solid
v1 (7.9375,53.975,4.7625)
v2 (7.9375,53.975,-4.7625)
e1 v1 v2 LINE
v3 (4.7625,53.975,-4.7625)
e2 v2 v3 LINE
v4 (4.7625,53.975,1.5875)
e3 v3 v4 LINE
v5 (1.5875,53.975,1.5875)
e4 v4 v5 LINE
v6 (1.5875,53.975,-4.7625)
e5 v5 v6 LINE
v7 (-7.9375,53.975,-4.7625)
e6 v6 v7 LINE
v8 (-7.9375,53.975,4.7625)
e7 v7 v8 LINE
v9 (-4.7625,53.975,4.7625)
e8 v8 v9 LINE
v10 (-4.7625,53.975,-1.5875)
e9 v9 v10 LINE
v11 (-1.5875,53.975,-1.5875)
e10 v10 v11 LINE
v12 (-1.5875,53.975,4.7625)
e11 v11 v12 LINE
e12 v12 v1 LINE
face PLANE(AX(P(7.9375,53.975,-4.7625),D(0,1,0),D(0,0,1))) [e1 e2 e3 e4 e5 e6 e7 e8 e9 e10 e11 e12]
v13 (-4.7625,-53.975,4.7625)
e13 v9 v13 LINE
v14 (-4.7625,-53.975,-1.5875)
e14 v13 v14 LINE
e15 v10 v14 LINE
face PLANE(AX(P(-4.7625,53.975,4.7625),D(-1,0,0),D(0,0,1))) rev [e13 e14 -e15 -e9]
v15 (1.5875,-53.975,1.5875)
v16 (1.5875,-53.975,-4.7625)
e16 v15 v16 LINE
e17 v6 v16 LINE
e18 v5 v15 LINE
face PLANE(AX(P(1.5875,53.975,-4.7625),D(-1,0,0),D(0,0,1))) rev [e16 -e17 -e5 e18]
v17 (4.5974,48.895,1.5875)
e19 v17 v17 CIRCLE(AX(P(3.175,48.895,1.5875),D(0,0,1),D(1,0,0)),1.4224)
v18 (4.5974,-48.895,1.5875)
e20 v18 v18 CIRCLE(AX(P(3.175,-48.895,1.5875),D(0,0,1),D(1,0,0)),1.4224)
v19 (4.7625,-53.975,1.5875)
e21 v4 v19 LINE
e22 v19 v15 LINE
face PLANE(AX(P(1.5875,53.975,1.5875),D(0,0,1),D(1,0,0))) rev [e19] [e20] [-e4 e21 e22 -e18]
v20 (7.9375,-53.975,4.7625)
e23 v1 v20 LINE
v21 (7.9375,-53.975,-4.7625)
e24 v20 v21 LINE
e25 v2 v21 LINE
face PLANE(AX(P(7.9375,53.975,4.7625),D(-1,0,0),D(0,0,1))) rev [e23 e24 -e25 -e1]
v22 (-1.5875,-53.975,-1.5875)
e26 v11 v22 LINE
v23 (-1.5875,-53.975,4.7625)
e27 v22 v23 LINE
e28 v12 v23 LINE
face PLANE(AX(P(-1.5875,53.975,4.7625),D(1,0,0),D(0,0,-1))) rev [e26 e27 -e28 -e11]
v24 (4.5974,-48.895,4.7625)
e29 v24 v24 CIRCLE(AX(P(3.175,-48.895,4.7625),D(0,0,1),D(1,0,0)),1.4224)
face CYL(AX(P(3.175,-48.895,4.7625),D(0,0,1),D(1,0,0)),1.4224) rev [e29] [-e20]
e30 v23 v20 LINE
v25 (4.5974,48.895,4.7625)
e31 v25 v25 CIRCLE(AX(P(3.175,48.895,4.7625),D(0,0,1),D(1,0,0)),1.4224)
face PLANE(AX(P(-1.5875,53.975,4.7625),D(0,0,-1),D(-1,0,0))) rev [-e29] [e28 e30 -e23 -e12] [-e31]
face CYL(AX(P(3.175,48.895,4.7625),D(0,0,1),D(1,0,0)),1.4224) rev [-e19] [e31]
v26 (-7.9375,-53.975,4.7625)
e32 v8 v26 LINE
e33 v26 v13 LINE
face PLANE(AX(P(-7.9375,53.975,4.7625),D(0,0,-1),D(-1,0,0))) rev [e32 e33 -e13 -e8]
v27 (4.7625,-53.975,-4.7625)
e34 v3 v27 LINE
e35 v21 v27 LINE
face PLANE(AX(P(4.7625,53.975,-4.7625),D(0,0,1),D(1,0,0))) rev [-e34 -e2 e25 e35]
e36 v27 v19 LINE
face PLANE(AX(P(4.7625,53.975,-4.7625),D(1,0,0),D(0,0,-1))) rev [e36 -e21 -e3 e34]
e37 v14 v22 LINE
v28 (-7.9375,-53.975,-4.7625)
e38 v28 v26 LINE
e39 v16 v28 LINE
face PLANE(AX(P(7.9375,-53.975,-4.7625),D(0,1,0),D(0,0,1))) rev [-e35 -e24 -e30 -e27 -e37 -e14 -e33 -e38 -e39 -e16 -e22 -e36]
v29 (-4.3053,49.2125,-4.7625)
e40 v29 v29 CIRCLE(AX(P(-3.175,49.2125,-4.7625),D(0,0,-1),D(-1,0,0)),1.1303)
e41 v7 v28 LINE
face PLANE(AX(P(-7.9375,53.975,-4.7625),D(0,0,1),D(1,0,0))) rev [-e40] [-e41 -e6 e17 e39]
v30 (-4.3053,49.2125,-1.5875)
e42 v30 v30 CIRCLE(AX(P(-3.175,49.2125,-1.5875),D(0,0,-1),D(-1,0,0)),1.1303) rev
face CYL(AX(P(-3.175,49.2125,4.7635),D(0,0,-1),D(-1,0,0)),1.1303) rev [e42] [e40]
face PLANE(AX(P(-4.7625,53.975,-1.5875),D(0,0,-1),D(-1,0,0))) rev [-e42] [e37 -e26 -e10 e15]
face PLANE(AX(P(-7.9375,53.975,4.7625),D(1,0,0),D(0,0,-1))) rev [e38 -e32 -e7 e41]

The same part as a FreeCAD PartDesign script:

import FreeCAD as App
import Part
import Sketcher
Q = App.Units.Quantity


def add_polygon(sketch, points):
    """Adds a closed chain of lines whose ends are joined by coincident constraints."""
    first, n = sketch.GeometryCount, len(points)
    for a, b in zip(points, points[1:] + points[:1]):
        sketch.addGeometry(Part.LineSegment(App.Vector(*a, 0), App.Vector(*b, 0)), False)
    for i in range(n):
        sketch.addConstraint(Sketcher.Constraint("Coincident", first + i, 2, first + (i + 1) % n, 1))

doc = App.newDocument("Part")
body = doc.addObject("PartDesign::Body", "Body")

sketch1 = body.newObject("Sketcher::SketchObject", "Sketch")
sketch1.AttachmentSupport = (doc.getObject("XZ_Plane"), [""])
sketch1.MapMode = "FlatFace"
add_polygon(sketch1, [(-1.6, 4.8), (7.9, 4.8), (7.9, -4.8), (4.8, -4.8), (4.8, 1.6), (1.6, 1.6), (1.6, -4.8), (-7.9, -4.8), (-7.9, 4.8), (-4.8, 4.8), (-4.8, -1.6), (-1.6, -1.6)])
sketch1.addConstraint([
    Sketcher.Constraint("Horizontal", 0),
    Sketcher.Constraint("Vertical", 1),
    Sketcher.Constraint("Horizontal", 2),
    Sketcher.Constraint("Vertical", 3),
    Sketcher.Constraint("Horizontal", 4),
    Sketcher.Constraint("Vertical", 5),
    Sketcher.Constraint("Horizontal", 6),
    Sketcher.Constraint("Vertical", 7),
    Sketcher.Constraint("Horizontal", 8),
    Sketcher.Constraint("Vertical", 9),
    Sketcher.Constraint("Horizontal", 10),
    Sketcher.Constraint("Vertical", 11),
    Sketcher.Constraint("Symmetric", 0, 2, 6, 2, -1, 1),
    Sketcher.Constraint("Symmetric", 2, 2, 8, 2, -1, 1),
    Sketcher.Constraint("Symmetric", 4, 2, 10, 2, -1, 1),
    Sketcher.Constraint("Horizontal", 2, 2, 5, 2),
    Sketcher.Constraint("Equal", 2, 4),
    Sketcher.Constraint("Equal", 6, 1),
    Sketcher.Constraint("DistanceY", 3, 1, 3, 2, Q("0.25 in")),
    Sketcher.Constraint("DistanceX", 6, 2, 2, 2, Q("0.5 in")),
    Sketcher.Constraint("DistanceX", 0, 1, 0, 2, Q("0.375 in")),
])
pad1 = body.newObject("PartDesign::Pad", "Pad")
pad1.Profile = sketch1
pad1.Length = Q("4.25 in")
pad1.Midplane = True

sketch2 = body.newObject("Sketcher::SketchObject", "Sketch001")
sketch2.AttachmentSupport = (doc.getObject("XY_Plane"), [""])
sketch2.MapMode = "FlatFace"
sketch2.AttachmentOffset = App.Placement(App.Vector(0, 0, 0.1875 * 25.4), App.Rotation())
sketch2.addGeometry([
    Part.Circle(App.Vector(3.2, -48.9, 0), App.Vector(0, 0, 1), 1.1),
    Part.Circle(App.Vector(3.2, 48.9, 0), App.Vector(0, 0, 1), 1.1),
], False)
sketch2.addConstraint([
    Sketcher.Constraint("Equal", 0, 1),
    Sketcher.Constraint("Symmetric", 0, 3, 1, 3, -1),
    Sketcher.Constraint("Diameter", 0, Q("0.089 in")),
    Sketcher.Constraint("DistanceY", 0, 3, 1, 3, Q("3.85 in")),
    Sketcher.Constraint("DistanceX", -1, 1, 0, 3, Q("0.125 in")),
])
pocket1 = body.newObject("PartDesign::Pocket", "Pocket")
pocket1.Profile = sketch2
pocket1.Type = "ThroughAll"

sketch3 = body.newObject("Sketcher::SketchObject", "Sketch002")
sketch3.AttachmentSupport = (doc.getObject("XY_Plane"), [""])
sketch3.MapMode = "FlatFace"
sketch3.AttachmentOffset = App.Placement(App.Vector(0, 0, -0.1875 * 25.4), App.Rotation())
sketch3.addGeometry(Part.Circle(App.Vector(-3.2, 49.2, 0), App.Vector(0, 0, 1), 1.1), False)
sketch3.addConstraint([
    Sketcher.Constraint("Diameter", 0, Q("0.089 in")),
    Sketcher.Constraint("DistanceX", 0, 3, -1, 1, Q("0.125 in")),
    Sketcher.Constraint("DistanceY", -1, 1, 0, 3, Q("1.9375 in")),
])
pocket2 = body.newObject("PartDesign::Pocket", "Pocket001")
pocket2.Profile = sketch3
pocket2.Type = "UpToFirst"
pocket2.Reversed = True

sketch4 = body.newObject("Sketcher::SketchObject", "Sketch003")
sketch4.AttachmentSupport = (doc.getObject("XY_Plane"), [""])
sketch4.MapMode = "FlatFace"
sketch4.AttachmentOffset = App.Placement(App.Vector(0, 0, 0.1875 * 25.4), App.Rotation())
sketch4.addGeometry([
    Part.Circle(App.Vector(3.2, 48.9, 0), App.Vector(0, 0, 1), 1.1),
    Part.Circle(App.Vector(3.2, -48.9, 0), App.Vector(0, 0, 1), 1.1),
], False)
sketch4.addConstraint([
    Sketcher.Constraint("Equal", 0, 1),
    Sketcher.Constraint("Symmetric", 0, 3, 1, 3, -1),
    Sketcher.Constraint("Diameter", 0, Q("0.089 in")),
    Sketcher.Constraint("DistanceY", 1, 3, 0, 3, Q("3.85 in")),
    Sketcher.Constraint("DistanceX", -1, 1, 0, 3, Q("0.125 in")),
])
doc.recompute()
hole = body.newObject("PartDesign::Hole", "Hole")
hole.Profile = sketch4
hole.ThreadType = "None"
hole.Diameter = Q("0.089 in")
hole.DepthType = "Dimension"
hole.Depth = Q("0.35 in")
hole.DrillPoint = "Angled"
hole.DrillPointAngle = 118
hole.HoleCutType = "Counterbore"
hole.HoleCutDiameter = Q("0.112 in")
hole.HoleCutDepth = Q("0.22 in")

doc.recompute()
